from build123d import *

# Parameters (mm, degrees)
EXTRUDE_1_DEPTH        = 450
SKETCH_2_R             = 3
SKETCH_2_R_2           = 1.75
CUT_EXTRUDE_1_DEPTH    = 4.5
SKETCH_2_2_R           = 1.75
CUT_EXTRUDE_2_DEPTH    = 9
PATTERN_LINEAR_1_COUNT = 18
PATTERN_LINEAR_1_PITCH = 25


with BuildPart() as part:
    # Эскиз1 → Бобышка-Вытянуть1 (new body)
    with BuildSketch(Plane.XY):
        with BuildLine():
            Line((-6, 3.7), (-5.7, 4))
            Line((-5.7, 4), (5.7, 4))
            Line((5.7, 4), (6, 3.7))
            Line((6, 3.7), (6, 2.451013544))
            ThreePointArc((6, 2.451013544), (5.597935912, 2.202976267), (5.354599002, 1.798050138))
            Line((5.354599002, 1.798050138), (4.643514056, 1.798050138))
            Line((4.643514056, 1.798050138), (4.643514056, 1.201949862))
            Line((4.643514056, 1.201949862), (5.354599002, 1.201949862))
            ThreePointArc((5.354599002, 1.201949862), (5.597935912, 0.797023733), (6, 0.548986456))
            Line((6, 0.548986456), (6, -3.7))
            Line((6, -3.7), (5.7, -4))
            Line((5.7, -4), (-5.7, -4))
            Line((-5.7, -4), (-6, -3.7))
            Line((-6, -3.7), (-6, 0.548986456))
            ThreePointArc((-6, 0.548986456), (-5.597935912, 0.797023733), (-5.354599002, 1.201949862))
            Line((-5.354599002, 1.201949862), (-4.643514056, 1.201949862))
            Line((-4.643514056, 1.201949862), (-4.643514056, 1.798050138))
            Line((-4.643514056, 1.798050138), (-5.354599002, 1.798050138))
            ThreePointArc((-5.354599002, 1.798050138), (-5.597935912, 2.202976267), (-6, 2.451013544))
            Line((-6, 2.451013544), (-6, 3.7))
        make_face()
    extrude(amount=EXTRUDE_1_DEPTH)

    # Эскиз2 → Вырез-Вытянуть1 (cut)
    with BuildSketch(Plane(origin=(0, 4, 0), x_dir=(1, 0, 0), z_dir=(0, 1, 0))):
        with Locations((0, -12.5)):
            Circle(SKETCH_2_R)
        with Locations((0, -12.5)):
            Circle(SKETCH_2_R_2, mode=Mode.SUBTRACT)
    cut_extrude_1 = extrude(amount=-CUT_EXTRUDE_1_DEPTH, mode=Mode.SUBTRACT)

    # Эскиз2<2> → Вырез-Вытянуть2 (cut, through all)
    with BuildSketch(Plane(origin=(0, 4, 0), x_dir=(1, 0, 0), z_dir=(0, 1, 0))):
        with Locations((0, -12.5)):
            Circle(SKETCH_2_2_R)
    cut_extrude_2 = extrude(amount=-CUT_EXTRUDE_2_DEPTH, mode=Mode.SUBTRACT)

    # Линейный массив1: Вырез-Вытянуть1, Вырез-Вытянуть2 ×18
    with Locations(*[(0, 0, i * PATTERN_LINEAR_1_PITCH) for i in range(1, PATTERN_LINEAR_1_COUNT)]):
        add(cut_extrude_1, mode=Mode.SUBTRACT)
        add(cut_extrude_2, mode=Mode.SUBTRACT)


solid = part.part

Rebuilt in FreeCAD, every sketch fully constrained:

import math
import FreeCAD as App
import Part
import Sketcher
Q = App.Units.Quantity

doc = App.newDocument("Part")
body = doc.addObject("PartDesign::Body", "Body")

sketch1 = body.newObject("Sketcher::SketchObject", "Sketch")
sketch1.AttachmentSupport = (doc.getObject("XY_Plane"), [""])
sketch1.MapMode = "FlatFace"
sketch1.addGeometry([
    Part.LineSegment(App.Vector(-5.7, 4, 0), App.Vector(-6, 3.7, 0)),
    Part.LineSegment(App.Vector(-6, 3.7, 0), App.Vector(-6, 2.45, 0)),
    Part.ArcOfCircle(Part.Circle(App.Vector(-6.31, 1.5, 0), App.Vector(0, 0, 1), 1), math.radians(17), math.radians(72)),
    Part.LineSegment(App.Vector(-5.35, 1.8, 0), App.Vector(-4.64, 1.8, 0)),
    Part.LineSegment(App.Vector(-4.64, 1.8, 0), App.Vector(-4.64, 1.2, 0)),
    Part.LineSegment(App.Vector(-4.64, 1.2, 0), App.Vector(-5.35, 1.2, 0)),
    Part.ArcOfCircle(Part.Circle(App.Vector(-6.31, 1.5, 0), App.Vector(0, 0, 1), 1), math.radians(-72), math.radians(-17)),
    Part.LineSegment(App.Vector(-6, 0.55, 0), App.Vector(-6, -3.7, 0)),
    Part.LineSegment(App.Vector(-6, -3.7, 0), App.Vector(-5.7, -4, 0)),
    Part.LineSegment(App.Vector(-5.7, -4, 0), App.Vector(5.7, -4, 0)),
    Part.LineSegment(App.Vector(5.7, -4, 0), App.Vector(6, -3.7, 0)),
    Part.LineSegment(App.Vector(6, -3.7, 0), App.Vector(6, 0.55, 0)),
    Part.ArcOfCircle(Part.Circle(App.Vector(6.31, 1.5, 0), App.Vector(0, 0, 1), 1), math.radians(-163), math.radians(-108)),
    Part.LineSegment(App.Vector(5.35, 1.2, 0), App.Vector(4.64, 1.2, 0)),
    Part.LineSegment(App.Vector(4.64, 1.2, 0), App.Vector(4.64, 1.8, 0)),
    Part.LineSegment(App.Vector(4.64, 1.8, 0), App.Vector(5.35, 1.8, 0)),
    Part.ArcOfCircle(Part.Circle(App.Vector(6.31, 1.5, 0), App.Vector(0, 0, 1), 1), math.radians(108), math.radians(163)),
    Part.LineSegment(App.Vector(6, 2.45, 0), App.Vector(6, 3.7, 0)),
    Part.LineSegment(App.Vector(6, 3.7, 0), App.Vector(5.7, 4, 0)),
    Part.LineSegment(App.Vector(5.7, 4, 0), App.Vector(-5.7, 4, 0)),
], False)
sketch1.addConstraint([
    Sketcher.Constraint("Coincident", 0, 2, 1, 1),
    Sketcher.Constraint("Coincident", 1, 2, 2, 2),
    Sketcher.Constraint("Coincident", 2, 1, 3, 1),
    Sketcher.Constraint("Coincident", 3, 2, 4, 1),
    Sketcher.Constraint("Coincident", 4, 2, 5, 1),
    Sketcher.Constraint("Coincident", 5, 2, 6, 2),
    Sketcher.Constraint("Coincident", 6, 1, 7, 1),
    Sketcher.Constraint("Coincident", 7, 2, 8, 1),
    Sketcher.Constraint("Coincident", 8, 2, 9, 1),
    Sketcher.Constraint("Coincident", 9, 2, 10, 1),
    Sketcher.Constraint("Coincident", 10, 2, 11, 1),
    Sketcher.Constraint("Coincident", 11, 2, 12, 2),
    Sketcher.Constraint("Coincident", 12, 1, 13, 1),
    Sketcher.Constraint("Coincident", 13, 2, 14, 1),
    Sketcher.Constraint("Coincident", 14, 2, 15, 1),
    Sketcher.Constraint("Coincident", 15, 2, 16, 2),
    Sketcher.Constraint("Coincident", 16, 1, 17, 1),
    Sketcher.Constraint("Coincident", 17, 2, 18, 1),
    Sketcher.Constraint("Coincident", 18, 2, 19, 1),
    Sketcher.Constraint("Coincident", 19, 2, 0, 1),
    Sketcher.Constraint("Vertical", 1),
    Sketcher.Constraint("Horizontal", 3),
    Sketcher.Constraint("Vertical", 4),
    Sketcher.Constraint("Horizontal", 5),
    Sketcher.Constraint("Vertical", 7),
    Sketcher.Constraint("Horizontal", 9),
    Sketcher.Constraint("Vertical", 11),
    Sketcher.Constraint("Horizontal", 13),
    Sketcher.Constraint("Vertical", 14),
    Sketcher.Constraint("Horizontal", 15),
    Sketcher.Constraint("Vertical", 17),
    Sketcher.Constraint("Horizontal", 19),
    Sketcher.Constraint("Coincident", 6, 3, 2, 3),
    Sketcher.Constraint("Coincident", 16, 3, 12, 3),
    Sketcher.Constraint("Equal", 2, 6),
    Sketcher.Constraint("Equal", 6, 12),
    Sketcher.Constraint("Equal", 12, 16),
    Sketcher.Constraint("Symmetric", 0, 2, 10, 2, -1, 1),
    Sketcher.Constraint("Symmetric", 7, 2, 17, 2, -1, 1),
    Sketcher.Constraint("Symmetric", 8, 2, 18, 2, -1, 1),
    Sketcher.Constraint("Symmetric", 2, 3, 12, 3, -2),
    Sketcher.Constraint("Symmetric", 7, 2, 10, 2, -2),
    Sketcher.Constraint("Symmetric", 4, 2, 13, 2, -2),
    Sketcher.Constraint("Perpendicular", 0, 8),
    Sketcher.Constraint("Perpendicular", 8, 10),
    Sketcher.Constraint("Horizontal", 3, 2, 14, 2),
    Sketcher.Constraint("Vertical", 2, 1, 5, 2),
    Sketcher.Constraint("Vertical", 9, 2, 18, 2),
    Sketcher.Constraint("Radius", 2, Q("1 mm")),
    Sketcher.Constraint("DistanceX", 9, 1, 9, 2, Q("11.4 mm")),
    Sketcher.Constraint("DistanceX", 0, 2, -1, 1, Q("6 mm")),
    Sketcher.Constraint("DistanceY", 8, 2, -1, 1, Q("4 mm")),
    Sketcher.Constraint("DistanceY", -1, 1, 2, 3, Q("1.5 mm")),
    Sketcher.Constraint("DistanceY", 4, 2, 4, 1, Q("0.5961 mm")),
    Sketcher.Constraint("DistanceX", 2, 1, -1, 1, Q("5.354599 mm")),
    Sketcher.Constraint("DistanceX", 3, 1, 3, 2, Q("0.711085 mm")),
])
pad1 = body.newObject("PartDesign::Pad", "Pad")
pad1.Profile = sketch1
pad1.Length = 450

sketch2 = body.newObject("Sketcher::SketchObject", "Sketch001")
sketch2.AttachmentSupport = (doc.getObject("XZ_Plane"), [""])
sketch2.MapMode = "FlatFace"
sketch2.AttachmentOffset = App.Placement(App.Vector(0, 0, -4), App.Rotation())
sketch2.addGeometry([
    Part.Circle(App.Vector(0, 12.5, 0), App.Vector(0, 0, 1), 3),
    Part.Circle(App.Vector(0, 12.5, 0), App.Vector(0, 0, 1), 1.8),
], False)
sketch2.addConstraint([
    Sketcher.Constraint("Coincident", 1, 3, 0, 3),
    Sketcher.Constraint("PointOnObject", 0, 3, -2),
    Sketcher.Constraint("Diameter", 0, Q("6 mm")),
    Sketcher.Constraint("Diameter", 1, Q("3.5 mm")),
    Sketcher.Constraint("DistanceY", -1, 1, 0, 3, Q("12.5 mm")),
])
pocket1 = body.newObject("PartDesign::Pocket", "Pocket")
pocket1.Profile = sketch2
pocket1.Length = 4.5
pocket1.Reversed = True

sketch3 = body.newObject("Sketcher::SketchObject", "Sketch002")
sketch3.AttachmentSupport = (doc.getObject("XZ_Plane"), [""])
sketch3.MapMode = "FlatFace"
sketch3.AttachmentOffset = App.Placement(App.Vector(0, 0, -4), App.Rotation())
sketch3.addGeometry(Part.Circle(App.Vector(0, 12.5, 0), App.Vector(0, 0, 1), 1.8), False)
sketch3.addConstraint([
    Sketcher.Constraint("PointOnObject", 0, 3, -2),
    Sketcher.Constraint("Diameter", 0, Q("3.5 mm")),
    Sketcher.Constraint("DistanceY", -1, 1, 0, 3, Q("12.5 mm")),
])
pocket2 = body.newObject("PartDesign::Pocket", "Pocket001")
pocket2.Profile = sketch3
pocket2.Type = "ThroughAll"
pocket2.Reversed = True
doc.recompute()

linearpattern = body.newObject("PartDesign::LinearPattern", "LinearPattern")
linearpattern.Originals = [pocket1, pocket2]
linearpattern.Direction = (doc.getObject("Z_Axis"), [""])
linearpattern.Mode = "offset"
linearpattern.Offset = 25
linearpattern.Occurrences = 18
body.Tip = linearpattern

doc.recompute()
